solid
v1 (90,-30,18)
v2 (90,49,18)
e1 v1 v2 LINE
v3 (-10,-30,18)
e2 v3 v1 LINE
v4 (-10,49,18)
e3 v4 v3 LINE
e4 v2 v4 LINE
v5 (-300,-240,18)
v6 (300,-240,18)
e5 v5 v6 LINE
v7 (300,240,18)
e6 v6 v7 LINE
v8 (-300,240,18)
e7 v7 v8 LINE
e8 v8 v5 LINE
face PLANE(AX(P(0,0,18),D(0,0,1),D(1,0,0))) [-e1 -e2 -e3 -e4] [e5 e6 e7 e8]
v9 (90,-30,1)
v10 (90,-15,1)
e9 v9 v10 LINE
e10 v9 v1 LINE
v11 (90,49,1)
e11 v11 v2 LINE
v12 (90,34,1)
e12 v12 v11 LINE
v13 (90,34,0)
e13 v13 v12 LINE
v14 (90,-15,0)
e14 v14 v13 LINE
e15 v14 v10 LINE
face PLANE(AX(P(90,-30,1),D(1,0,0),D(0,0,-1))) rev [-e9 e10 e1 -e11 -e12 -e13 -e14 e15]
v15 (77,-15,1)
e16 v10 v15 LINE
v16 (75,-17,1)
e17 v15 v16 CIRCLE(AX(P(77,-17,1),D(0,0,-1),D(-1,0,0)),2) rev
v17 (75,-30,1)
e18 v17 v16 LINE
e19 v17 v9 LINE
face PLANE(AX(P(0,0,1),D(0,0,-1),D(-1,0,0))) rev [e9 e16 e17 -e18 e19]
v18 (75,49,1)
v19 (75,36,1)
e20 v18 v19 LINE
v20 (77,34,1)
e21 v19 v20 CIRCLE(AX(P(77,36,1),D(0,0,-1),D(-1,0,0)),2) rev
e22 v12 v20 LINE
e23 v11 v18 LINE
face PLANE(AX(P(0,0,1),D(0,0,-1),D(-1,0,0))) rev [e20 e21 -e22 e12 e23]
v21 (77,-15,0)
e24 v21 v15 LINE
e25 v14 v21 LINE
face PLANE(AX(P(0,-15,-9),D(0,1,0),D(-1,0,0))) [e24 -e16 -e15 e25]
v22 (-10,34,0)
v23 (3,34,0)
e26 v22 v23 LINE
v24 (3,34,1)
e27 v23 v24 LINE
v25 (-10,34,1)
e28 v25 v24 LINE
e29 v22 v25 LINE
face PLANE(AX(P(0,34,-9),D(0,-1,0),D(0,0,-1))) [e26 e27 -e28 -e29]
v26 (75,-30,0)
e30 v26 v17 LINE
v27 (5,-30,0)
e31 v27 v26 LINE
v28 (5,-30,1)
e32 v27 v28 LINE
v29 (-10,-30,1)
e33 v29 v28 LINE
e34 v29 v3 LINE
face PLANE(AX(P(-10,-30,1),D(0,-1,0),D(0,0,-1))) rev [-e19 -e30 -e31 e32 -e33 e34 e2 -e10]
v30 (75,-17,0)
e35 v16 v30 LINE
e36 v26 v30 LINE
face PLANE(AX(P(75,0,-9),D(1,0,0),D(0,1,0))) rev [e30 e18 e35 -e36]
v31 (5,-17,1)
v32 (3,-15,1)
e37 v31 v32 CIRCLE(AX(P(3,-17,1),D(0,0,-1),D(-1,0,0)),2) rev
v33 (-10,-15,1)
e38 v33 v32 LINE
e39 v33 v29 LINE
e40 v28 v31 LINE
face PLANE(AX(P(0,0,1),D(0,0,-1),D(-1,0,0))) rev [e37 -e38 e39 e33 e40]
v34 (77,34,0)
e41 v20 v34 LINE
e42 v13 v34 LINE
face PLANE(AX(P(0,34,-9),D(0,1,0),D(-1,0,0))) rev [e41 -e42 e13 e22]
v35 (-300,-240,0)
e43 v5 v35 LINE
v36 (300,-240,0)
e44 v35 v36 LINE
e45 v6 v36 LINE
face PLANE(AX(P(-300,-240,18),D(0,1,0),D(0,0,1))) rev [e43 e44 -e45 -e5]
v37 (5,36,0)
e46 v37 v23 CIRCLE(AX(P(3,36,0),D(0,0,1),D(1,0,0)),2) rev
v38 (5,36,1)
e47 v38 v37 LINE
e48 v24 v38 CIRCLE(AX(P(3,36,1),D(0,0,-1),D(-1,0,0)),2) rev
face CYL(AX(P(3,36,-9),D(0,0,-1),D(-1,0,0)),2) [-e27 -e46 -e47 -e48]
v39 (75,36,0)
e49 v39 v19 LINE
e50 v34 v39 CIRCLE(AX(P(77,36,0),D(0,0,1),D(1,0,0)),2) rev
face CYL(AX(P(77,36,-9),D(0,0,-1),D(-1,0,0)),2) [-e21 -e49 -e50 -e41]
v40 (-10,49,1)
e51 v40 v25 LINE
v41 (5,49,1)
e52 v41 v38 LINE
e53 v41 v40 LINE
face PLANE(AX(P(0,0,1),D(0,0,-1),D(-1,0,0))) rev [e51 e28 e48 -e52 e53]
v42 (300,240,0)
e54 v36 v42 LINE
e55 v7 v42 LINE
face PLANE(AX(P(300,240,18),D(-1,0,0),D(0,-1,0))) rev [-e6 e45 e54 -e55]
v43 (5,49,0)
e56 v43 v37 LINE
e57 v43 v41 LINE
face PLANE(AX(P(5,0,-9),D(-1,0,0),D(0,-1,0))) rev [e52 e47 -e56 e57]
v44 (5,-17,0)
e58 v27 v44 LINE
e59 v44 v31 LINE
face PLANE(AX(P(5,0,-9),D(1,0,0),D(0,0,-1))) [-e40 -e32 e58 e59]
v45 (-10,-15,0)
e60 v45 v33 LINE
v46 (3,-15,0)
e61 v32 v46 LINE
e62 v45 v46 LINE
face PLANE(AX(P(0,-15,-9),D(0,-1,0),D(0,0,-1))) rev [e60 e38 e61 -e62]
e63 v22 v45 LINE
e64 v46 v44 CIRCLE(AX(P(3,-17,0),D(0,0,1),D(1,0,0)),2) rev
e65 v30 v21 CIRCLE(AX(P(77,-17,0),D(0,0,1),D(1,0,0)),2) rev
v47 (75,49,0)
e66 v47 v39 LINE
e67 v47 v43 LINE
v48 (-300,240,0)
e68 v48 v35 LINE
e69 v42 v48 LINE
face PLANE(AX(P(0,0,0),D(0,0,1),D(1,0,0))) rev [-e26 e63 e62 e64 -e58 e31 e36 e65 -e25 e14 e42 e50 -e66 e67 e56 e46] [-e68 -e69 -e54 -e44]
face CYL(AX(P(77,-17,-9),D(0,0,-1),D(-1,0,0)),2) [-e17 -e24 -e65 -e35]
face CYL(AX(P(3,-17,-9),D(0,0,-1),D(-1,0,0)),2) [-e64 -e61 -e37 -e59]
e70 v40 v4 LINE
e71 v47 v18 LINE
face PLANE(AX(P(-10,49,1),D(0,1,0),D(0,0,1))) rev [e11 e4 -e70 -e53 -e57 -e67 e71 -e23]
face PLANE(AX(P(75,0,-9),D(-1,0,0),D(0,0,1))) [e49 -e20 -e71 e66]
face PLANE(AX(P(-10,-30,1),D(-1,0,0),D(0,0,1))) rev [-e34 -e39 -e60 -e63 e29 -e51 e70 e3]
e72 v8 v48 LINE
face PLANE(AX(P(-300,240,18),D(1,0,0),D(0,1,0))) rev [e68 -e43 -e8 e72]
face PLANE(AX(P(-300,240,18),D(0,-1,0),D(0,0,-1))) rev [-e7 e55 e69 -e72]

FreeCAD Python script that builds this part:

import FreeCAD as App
import Part
import Sketcher
from FreeCAD import Vector
Q = App.Units.Quantity


def edges_at(feature, points):
    """Names of the edges that pass closest to the given points."""
    edges = feature.Shape.Edges
    near = lambda p: min(range(len(edges)), key=lambda i: edges[i].distToShape(Part.Vertex(*p))[0])
    return sorted({f"Edge{near(p) + 1}" for p in points})


def add_polygon(sketch, points):
    """Adds a closed chain of lines whose ends are joined by coincident constraints."""
    first, n = sketch.GeometryCount, len(points)
    for a, b in zip(points, points[1:] + points[:1]):
        sketch.addGeometry(Part.LineSegment(App.Vector(*a, 0), App.Vector(*b, 0)), False)
    for i in range(n):
        sketch.addConstraint(Sketcher.Constraint("Coincident", first + i, 2, first + (i + 1) % n, 1))

doc = App.newDocument("Part")
body = doc.addObject("PartDesign::Body", "Body")

sketch1 = body.newObject("Sketcher::SketchObject", "Sketch")
sketch1.AttachmentSupport = (doc.getObject("XY_Plane"), [""])
sketch1.MapMode = "FlatFace"
add_polygon(sketch1, [(-300, 240), (-300, -240), (300, -240), (300, 240)])
sketch1.addConstraint(Sketcher.Constraint("Vertical", 0))
sketch1.addConstraint(Sketcher.Constraint("Horizontal", 1))
sketch1.addConstraint(Sketcher.Constraint("Vertical", 2))
sketch1.addConstraint(Sketcher.Constraint("Horizontal", 3))
sketch1.addConstraint(Sketcher.Constraint("Symmetric", 0, 2, 2, 2, -1, 1))
sketch1.addConstraint(Sketcher.Constraint("DistanceX", 1, 1, 1, 2, Q("600 mm")))
sketch1.addConstraint(Sketcher.Constraint("DistanceY", 0, 2, 0, 1, Q("480 mm")))
pad1 = body.newObject("PartDesign::Pad", "Pad")
pad1.Profile = sketch1
pad1.Length = 18

sketch2 = body.newObject("Sketcher::SketchObject", "Sketch001")
sketch2.AttachmentSupport = (doc.getObject("XY_Plane"), [""])
sketch2.MapMode = "FlatFace"
sketch2.AttachmentOffset = App.Placement(Vector(0, 0, 18), App.Rotation())
add_polygon(sketch2, [(-10, 49), (-10, -30), (90, -30), (90, 49)])
sketch2.addConstraint(Sketcher.Constraint("Vertical", 0))
sketch2.addConstraint(Sketcher.Constraint("Horizontal", 1))
sketch2.addConstraint(Sketcher.Constraint("Vertical", 2))
sketch2.addConstraint(Sketcher.Constraint("Horizontal", 3))
sketch2.addConstraint(Sketcher.Constraint("DistanceX", 1, 1, 1, 2, Q("100 mm")))
sketch2.addConstraint(Sketcher.Constraint("DistanceY", 0, 2, 0, 1, Q("79 mm")))
sketch2.addConstraint(Sketcher.Constraint("DistanceX", 0, 2, -1, 1, Q("10 mm")))
sketch2.addConstraint(Sketcher.Constraint("DistanceY", 0, 2, -1, 1, Q("30 mm")))
pocket1 = body.newObject("PartDesign::Pocket", "Pocket")
pocket1.Profile = sketch2
pocket1.Length = 17

sketch3 = body.newObject("Sketcher::SketchObject", "Sketch002")
sketch3.AttachmentSupport = (doc.getObject("XY_Plane"), [""])
sketch3.MapMode = "FlatFace"
sketch3.AttachmentOffset = App.Placement(Vector(0, 0, 1), App.Rotation())
add_polygon(sketch3, [(75, 49), (5, 49), (5, 34), (-10, 34), (-10, -15), (5, -15), (5, -30), (75, -30), (75, -15), (90, -15), (90, 34), (75, 34)])
sketch3.addConstraint(Sketcher.Constraint("Horizontal", 0))
sketch3.addConstraint(Sketcher.Constraint("Vertical", 1))
sketch3.addConstraint(Sketcher.Constraint("Horizontal", 2))
sketch3.addConstraint(Sketcher.Constraint("Vertical", 3))
sketch3.addConstraint(Sketcher.Constraint("Horizontal", 4))
sketch3.addConstraint(Sketcher.Constraint("Vertical", 5))
sketch3.addConstraint(Sketcher.Constraint("Horizontal", 6))
sketch3.addConstraint(Sketcher.Constraint("Vertical", 7))
sketch3.addConstraint(Sketcher.Constraint("Horizontal", 8))
sketch3.addConstraint(Sketcher.Constraint("Vertical", 9))
sketch3.addConstraint(Sketcher.Constraint("Horizontal", 10))
sketch3.addConstraint(Sketcher.Constraint("Vertical", 11))
sketch3.addConstraint(Sketcher.Constraint("Horizontal", 4, 2, 7, 2))
sketch3.addConstraint(Sketcher.Constraint("Horizontal", 2, 2, 9, 2))
sketch3.addConstraint(Sketcher.Constraint("Vertical", 1, 2, 4, 2))
sketch3.addConstraint(Sketcher.Constraint("Vertical", 7, 2, 10, 2))
sketch3.addConstraint(Sketcher.Constraint("Equal", 4, 8))
sketch3.addConstraint(Sketcher.Constraint("Equal", 10, 1))
sketch3.addConstraint(Sketcher.Constraint("Equal", 1, 5))
sketch3.addConstraint(Sketcher.Constraint("DistanceX", 0, 2, 0, 1, Q("70 mm")))
sketch3.addConstraint(Sketcher.Constraint("DistanceX", 2, 2, 2, 1, Q("15 mm")))
sketch3.addConstraint(Sketcher.Constraint("DistanceY", 3, 2, 3, 1, Q("49 mm")))
sketch3.addConstraint(Sketcher.Constraint("DistanceX", -1, 1, 0, 2, Q("5 mm")))
sketch3.addConstraint(Sketcher.Constraint("DistanceY", -1, 1, 0, 2, Q("49 mm")))
pocket2 = body.newObject("PartDesign::Pocket", "Pocket001")
pocket2.Profile = sketch3
pocket2.Length = 10
doc.recompute()

fillet = body.newObject("PartDesign::Fillet", "Fillet")
fillet.Base = (pocket2, edges_at(pocket2, [
    (5, -15, 0.5),
    (5, 34, 0.5),
    (75, 34, 0.5),
    (75, -15, 0.5),
]))
fillet.Radius = 2

doc.recompute()
